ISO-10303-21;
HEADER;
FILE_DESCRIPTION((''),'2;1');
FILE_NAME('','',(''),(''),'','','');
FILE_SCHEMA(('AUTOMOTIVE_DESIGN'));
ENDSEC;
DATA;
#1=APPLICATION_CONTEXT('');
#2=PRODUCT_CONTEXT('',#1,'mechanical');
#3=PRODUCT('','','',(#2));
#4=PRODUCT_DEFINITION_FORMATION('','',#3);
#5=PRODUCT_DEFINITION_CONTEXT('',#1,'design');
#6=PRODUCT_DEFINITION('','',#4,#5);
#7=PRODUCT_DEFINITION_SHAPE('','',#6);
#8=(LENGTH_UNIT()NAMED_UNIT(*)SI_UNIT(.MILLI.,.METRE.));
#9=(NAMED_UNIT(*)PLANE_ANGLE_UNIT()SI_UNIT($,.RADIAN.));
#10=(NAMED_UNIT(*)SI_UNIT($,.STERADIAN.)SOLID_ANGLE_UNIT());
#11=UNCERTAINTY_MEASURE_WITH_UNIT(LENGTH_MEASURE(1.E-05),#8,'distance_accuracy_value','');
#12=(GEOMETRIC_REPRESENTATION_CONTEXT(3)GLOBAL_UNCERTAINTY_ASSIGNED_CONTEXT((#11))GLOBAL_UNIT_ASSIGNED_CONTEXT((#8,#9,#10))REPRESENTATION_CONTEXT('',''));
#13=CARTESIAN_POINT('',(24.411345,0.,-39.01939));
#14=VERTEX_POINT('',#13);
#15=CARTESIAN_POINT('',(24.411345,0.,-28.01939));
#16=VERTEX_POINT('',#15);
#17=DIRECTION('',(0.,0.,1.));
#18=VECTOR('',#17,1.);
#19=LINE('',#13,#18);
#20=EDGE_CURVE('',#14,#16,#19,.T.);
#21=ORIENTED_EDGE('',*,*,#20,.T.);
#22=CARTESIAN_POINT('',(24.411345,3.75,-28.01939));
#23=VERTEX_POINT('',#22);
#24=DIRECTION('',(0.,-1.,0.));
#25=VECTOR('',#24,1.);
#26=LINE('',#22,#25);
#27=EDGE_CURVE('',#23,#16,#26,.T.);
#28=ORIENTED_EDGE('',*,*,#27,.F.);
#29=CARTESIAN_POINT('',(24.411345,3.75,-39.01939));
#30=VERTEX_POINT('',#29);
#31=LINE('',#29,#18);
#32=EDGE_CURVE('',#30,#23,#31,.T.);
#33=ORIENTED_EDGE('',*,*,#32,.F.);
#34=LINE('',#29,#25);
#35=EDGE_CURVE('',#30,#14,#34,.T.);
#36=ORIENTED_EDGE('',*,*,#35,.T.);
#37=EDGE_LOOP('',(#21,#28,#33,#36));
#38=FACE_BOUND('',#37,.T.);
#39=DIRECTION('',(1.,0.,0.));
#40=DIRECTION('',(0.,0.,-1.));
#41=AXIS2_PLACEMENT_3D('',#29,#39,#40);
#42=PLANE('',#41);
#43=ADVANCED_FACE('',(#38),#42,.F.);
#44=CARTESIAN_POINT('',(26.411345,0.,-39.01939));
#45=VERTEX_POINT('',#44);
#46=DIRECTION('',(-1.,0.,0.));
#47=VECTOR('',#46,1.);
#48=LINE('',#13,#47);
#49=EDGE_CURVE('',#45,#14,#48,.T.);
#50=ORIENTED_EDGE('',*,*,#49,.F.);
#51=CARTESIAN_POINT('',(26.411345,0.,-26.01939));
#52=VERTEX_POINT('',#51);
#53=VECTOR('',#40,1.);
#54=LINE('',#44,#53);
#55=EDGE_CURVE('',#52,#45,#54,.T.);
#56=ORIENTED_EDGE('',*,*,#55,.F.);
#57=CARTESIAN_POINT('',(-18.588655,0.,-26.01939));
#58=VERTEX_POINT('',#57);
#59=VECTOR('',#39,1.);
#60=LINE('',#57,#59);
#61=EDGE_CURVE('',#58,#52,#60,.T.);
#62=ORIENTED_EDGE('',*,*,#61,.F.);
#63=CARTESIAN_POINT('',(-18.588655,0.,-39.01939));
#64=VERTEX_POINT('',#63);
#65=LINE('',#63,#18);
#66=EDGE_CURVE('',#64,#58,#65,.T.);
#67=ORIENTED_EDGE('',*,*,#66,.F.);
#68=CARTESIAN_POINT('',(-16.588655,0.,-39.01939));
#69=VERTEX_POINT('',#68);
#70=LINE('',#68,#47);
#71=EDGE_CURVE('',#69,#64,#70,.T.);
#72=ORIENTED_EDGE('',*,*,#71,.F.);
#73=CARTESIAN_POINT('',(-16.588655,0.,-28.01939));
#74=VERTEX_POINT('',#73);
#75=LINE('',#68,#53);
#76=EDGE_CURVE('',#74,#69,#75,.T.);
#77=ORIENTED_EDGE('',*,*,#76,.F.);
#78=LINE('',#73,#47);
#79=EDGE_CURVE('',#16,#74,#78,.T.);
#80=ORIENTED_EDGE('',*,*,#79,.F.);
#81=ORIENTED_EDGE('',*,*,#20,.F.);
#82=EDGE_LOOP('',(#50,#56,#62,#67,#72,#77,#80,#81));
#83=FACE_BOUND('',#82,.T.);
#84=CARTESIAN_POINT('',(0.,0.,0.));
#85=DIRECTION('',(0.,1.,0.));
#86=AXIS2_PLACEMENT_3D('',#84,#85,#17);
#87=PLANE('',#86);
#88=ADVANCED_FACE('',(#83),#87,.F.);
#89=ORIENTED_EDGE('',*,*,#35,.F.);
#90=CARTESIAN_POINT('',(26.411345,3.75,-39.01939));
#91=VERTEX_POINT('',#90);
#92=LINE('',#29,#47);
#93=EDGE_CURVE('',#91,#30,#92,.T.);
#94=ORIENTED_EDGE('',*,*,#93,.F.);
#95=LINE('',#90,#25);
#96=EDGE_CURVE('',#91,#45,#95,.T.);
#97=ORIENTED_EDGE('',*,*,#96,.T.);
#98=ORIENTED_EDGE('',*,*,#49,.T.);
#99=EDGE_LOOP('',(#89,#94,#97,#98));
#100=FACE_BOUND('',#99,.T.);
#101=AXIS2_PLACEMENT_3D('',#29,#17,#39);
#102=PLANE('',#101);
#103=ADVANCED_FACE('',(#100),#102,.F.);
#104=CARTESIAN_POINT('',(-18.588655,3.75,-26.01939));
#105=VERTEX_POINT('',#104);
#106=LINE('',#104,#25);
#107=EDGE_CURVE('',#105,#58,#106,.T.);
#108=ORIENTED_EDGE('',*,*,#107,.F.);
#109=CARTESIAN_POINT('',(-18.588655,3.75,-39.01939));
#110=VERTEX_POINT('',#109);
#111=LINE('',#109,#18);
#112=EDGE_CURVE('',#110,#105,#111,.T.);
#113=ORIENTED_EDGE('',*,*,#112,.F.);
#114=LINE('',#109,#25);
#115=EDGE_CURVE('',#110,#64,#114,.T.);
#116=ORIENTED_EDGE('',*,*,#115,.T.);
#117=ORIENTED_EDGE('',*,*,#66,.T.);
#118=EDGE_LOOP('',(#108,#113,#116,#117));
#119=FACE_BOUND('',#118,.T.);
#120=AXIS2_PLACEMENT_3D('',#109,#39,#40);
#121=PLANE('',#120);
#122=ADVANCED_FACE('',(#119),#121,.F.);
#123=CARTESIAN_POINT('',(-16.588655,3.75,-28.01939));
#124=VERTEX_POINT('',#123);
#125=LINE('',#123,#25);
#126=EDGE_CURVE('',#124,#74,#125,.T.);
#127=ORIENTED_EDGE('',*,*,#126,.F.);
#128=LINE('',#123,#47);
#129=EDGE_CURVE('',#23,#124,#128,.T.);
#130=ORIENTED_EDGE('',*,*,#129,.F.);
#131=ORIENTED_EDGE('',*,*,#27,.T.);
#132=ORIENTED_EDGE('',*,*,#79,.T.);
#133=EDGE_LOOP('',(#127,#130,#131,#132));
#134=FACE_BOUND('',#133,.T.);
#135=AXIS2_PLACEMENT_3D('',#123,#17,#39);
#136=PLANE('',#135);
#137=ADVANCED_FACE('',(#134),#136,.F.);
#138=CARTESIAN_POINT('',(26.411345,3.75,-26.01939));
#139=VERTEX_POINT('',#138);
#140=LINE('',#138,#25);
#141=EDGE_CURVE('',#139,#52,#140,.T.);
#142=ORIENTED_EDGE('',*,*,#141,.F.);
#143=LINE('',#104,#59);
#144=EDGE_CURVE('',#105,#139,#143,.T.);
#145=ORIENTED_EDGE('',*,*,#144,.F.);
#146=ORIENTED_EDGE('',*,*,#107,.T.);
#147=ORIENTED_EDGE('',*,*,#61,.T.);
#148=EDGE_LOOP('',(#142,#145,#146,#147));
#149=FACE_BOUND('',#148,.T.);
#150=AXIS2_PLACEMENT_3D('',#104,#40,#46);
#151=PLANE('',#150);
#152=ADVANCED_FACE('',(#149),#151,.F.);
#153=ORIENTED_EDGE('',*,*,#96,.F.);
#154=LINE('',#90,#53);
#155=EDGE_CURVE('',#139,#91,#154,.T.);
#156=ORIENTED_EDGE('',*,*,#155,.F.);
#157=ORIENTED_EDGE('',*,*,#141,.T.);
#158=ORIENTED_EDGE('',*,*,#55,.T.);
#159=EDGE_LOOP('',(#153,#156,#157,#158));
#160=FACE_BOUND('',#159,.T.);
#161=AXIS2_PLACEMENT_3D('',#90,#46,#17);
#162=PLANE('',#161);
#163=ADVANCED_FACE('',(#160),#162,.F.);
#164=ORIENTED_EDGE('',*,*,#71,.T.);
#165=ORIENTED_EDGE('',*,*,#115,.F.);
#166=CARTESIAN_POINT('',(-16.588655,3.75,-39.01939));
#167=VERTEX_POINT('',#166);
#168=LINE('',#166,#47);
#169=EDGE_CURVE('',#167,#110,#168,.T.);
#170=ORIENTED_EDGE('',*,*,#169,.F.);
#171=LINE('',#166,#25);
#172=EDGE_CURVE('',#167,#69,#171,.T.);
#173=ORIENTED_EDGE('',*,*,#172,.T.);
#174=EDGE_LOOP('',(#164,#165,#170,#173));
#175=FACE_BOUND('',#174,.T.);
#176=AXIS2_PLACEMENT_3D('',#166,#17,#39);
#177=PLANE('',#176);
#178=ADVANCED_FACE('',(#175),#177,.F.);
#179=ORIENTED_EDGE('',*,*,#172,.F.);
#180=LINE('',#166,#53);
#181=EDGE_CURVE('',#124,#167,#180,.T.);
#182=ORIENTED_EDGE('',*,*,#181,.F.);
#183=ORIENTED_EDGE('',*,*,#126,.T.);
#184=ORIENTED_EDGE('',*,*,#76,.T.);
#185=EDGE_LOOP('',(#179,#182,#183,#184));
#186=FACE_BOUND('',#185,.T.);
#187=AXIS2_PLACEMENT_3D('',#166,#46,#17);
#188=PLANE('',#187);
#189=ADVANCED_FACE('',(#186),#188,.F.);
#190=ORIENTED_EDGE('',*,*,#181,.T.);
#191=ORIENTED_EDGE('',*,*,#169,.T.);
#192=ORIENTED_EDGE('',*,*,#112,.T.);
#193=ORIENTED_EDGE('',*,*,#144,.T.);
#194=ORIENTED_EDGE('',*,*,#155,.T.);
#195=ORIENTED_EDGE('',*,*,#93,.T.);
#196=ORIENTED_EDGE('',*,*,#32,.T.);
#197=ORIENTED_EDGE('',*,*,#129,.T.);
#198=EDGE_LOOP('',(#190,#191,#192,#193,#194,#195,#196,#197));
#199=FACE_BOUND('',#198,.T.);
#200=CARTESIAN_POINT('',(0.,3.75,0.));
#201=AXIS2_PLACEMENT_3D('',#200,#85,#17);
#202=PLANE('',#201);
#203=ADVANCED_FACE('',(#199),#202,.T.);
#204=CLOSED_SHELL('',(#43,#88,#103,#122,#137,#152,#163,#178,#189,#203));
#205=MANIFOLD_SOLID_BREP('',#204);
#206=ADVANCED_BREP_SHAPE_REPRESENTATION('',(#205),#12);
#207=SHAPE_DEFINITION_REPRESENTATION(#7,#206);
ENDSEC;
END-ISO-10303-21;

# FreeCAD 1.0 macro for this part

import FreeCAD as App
import Part
import Sketcher
from FreeCAD import Vector


def add_polygon(sketch, points):
    """Adds a closed chain of lines whose ends are joined by coincident constraints."""
    first, n = sketch.GeometryCount, len(points)
    for a, b in zip(points, points[1:] + points[:1]):
        sketch.addGeometry(Part.LineSegment(App.Vector(*a, 0), App.Vector(*b, 0)), False)
    for i in range(n):
        sketch.addConstraint(Sketcher.Constraint("Coincident", first + i, 2, first + (i + 1) % n, 1))

doc = App.newDocument("Part")
body = doc.addObject("PartDesign::Body", "Body")

sketch1 = doc.addObject("Sketcher::SketchObject", "Sketch")
body.addObject(sketch1)
sketch1.AttachmentSupport = (doc.XZ_Plane, [""])
sketch1.MapMode = "FlatFace"
add_polygon(sketch1, [(-16.6, -28), (-16.6, -39), (-18.6, -39), (-18.6, -26), (26.4, -26), (26.4, -39), (24.4, -39), (24.4, -28)])
sketch1.addConstraint(Sketcher.Constraint("Vertical", 0))
sketch1.addConstraint(Sketcher.Constraint("Horizontal", 1))
sketch1.addConstraint(Sketcher.Constraint("Vertical", 2))
sketch1.addConstraint(Sketcher.Constraint("Horizontal", 3))
sketch1.addConstraint(Sketcher.Constraint("Vertical", 4))
sketch1.addConstraint(Sketcher.Constraint("Horizontal", 5))
sketch1.addConstraint(Sketcher.Constraint("Vertical", 6))
sketch1.addConstraint(Sketcher.Constraint("Horizontal", 7))
sketch1.addConstraint(Sketcher.Constraint("Horizontal", 1, 2, 4, 2))
sketch1.addConstraint(Sketcher.Constraint("Equal", 1, 5))
sketch1.addConstraint(Sketcher.Constraint("DistanceX", 1, 2, 1, 1, 2.0))
sketch1.addConstraint(Sketcher.Constraint("DistanceX", 3, 1, 3, 2, 45.0))
sketch1.addConstraint(Sketcher.Constraint("DistanceY", 0, 2, 0, 1, 11.0))
sketch1.addConstraint(Sketcher.Constraint("DistanceY", 2, 1, 2, 2, 13.0))
sketch1.addConstraint(Sketcher.Constraint("DistanceY", 0, 2, -1, 1, 39.01939))
sketch1.addConstraint(Sketcher.Constraint("DistanceX", 0, 2, -1, 1, 16.588655))
pad1 = doc.addObject("PartDesign::Pad", "Pad")
body.addObject(pad1)
pad1.Profile = sketch1
pad1.Length = 3.75
pad1.Reversed = True

doc.recompute()
